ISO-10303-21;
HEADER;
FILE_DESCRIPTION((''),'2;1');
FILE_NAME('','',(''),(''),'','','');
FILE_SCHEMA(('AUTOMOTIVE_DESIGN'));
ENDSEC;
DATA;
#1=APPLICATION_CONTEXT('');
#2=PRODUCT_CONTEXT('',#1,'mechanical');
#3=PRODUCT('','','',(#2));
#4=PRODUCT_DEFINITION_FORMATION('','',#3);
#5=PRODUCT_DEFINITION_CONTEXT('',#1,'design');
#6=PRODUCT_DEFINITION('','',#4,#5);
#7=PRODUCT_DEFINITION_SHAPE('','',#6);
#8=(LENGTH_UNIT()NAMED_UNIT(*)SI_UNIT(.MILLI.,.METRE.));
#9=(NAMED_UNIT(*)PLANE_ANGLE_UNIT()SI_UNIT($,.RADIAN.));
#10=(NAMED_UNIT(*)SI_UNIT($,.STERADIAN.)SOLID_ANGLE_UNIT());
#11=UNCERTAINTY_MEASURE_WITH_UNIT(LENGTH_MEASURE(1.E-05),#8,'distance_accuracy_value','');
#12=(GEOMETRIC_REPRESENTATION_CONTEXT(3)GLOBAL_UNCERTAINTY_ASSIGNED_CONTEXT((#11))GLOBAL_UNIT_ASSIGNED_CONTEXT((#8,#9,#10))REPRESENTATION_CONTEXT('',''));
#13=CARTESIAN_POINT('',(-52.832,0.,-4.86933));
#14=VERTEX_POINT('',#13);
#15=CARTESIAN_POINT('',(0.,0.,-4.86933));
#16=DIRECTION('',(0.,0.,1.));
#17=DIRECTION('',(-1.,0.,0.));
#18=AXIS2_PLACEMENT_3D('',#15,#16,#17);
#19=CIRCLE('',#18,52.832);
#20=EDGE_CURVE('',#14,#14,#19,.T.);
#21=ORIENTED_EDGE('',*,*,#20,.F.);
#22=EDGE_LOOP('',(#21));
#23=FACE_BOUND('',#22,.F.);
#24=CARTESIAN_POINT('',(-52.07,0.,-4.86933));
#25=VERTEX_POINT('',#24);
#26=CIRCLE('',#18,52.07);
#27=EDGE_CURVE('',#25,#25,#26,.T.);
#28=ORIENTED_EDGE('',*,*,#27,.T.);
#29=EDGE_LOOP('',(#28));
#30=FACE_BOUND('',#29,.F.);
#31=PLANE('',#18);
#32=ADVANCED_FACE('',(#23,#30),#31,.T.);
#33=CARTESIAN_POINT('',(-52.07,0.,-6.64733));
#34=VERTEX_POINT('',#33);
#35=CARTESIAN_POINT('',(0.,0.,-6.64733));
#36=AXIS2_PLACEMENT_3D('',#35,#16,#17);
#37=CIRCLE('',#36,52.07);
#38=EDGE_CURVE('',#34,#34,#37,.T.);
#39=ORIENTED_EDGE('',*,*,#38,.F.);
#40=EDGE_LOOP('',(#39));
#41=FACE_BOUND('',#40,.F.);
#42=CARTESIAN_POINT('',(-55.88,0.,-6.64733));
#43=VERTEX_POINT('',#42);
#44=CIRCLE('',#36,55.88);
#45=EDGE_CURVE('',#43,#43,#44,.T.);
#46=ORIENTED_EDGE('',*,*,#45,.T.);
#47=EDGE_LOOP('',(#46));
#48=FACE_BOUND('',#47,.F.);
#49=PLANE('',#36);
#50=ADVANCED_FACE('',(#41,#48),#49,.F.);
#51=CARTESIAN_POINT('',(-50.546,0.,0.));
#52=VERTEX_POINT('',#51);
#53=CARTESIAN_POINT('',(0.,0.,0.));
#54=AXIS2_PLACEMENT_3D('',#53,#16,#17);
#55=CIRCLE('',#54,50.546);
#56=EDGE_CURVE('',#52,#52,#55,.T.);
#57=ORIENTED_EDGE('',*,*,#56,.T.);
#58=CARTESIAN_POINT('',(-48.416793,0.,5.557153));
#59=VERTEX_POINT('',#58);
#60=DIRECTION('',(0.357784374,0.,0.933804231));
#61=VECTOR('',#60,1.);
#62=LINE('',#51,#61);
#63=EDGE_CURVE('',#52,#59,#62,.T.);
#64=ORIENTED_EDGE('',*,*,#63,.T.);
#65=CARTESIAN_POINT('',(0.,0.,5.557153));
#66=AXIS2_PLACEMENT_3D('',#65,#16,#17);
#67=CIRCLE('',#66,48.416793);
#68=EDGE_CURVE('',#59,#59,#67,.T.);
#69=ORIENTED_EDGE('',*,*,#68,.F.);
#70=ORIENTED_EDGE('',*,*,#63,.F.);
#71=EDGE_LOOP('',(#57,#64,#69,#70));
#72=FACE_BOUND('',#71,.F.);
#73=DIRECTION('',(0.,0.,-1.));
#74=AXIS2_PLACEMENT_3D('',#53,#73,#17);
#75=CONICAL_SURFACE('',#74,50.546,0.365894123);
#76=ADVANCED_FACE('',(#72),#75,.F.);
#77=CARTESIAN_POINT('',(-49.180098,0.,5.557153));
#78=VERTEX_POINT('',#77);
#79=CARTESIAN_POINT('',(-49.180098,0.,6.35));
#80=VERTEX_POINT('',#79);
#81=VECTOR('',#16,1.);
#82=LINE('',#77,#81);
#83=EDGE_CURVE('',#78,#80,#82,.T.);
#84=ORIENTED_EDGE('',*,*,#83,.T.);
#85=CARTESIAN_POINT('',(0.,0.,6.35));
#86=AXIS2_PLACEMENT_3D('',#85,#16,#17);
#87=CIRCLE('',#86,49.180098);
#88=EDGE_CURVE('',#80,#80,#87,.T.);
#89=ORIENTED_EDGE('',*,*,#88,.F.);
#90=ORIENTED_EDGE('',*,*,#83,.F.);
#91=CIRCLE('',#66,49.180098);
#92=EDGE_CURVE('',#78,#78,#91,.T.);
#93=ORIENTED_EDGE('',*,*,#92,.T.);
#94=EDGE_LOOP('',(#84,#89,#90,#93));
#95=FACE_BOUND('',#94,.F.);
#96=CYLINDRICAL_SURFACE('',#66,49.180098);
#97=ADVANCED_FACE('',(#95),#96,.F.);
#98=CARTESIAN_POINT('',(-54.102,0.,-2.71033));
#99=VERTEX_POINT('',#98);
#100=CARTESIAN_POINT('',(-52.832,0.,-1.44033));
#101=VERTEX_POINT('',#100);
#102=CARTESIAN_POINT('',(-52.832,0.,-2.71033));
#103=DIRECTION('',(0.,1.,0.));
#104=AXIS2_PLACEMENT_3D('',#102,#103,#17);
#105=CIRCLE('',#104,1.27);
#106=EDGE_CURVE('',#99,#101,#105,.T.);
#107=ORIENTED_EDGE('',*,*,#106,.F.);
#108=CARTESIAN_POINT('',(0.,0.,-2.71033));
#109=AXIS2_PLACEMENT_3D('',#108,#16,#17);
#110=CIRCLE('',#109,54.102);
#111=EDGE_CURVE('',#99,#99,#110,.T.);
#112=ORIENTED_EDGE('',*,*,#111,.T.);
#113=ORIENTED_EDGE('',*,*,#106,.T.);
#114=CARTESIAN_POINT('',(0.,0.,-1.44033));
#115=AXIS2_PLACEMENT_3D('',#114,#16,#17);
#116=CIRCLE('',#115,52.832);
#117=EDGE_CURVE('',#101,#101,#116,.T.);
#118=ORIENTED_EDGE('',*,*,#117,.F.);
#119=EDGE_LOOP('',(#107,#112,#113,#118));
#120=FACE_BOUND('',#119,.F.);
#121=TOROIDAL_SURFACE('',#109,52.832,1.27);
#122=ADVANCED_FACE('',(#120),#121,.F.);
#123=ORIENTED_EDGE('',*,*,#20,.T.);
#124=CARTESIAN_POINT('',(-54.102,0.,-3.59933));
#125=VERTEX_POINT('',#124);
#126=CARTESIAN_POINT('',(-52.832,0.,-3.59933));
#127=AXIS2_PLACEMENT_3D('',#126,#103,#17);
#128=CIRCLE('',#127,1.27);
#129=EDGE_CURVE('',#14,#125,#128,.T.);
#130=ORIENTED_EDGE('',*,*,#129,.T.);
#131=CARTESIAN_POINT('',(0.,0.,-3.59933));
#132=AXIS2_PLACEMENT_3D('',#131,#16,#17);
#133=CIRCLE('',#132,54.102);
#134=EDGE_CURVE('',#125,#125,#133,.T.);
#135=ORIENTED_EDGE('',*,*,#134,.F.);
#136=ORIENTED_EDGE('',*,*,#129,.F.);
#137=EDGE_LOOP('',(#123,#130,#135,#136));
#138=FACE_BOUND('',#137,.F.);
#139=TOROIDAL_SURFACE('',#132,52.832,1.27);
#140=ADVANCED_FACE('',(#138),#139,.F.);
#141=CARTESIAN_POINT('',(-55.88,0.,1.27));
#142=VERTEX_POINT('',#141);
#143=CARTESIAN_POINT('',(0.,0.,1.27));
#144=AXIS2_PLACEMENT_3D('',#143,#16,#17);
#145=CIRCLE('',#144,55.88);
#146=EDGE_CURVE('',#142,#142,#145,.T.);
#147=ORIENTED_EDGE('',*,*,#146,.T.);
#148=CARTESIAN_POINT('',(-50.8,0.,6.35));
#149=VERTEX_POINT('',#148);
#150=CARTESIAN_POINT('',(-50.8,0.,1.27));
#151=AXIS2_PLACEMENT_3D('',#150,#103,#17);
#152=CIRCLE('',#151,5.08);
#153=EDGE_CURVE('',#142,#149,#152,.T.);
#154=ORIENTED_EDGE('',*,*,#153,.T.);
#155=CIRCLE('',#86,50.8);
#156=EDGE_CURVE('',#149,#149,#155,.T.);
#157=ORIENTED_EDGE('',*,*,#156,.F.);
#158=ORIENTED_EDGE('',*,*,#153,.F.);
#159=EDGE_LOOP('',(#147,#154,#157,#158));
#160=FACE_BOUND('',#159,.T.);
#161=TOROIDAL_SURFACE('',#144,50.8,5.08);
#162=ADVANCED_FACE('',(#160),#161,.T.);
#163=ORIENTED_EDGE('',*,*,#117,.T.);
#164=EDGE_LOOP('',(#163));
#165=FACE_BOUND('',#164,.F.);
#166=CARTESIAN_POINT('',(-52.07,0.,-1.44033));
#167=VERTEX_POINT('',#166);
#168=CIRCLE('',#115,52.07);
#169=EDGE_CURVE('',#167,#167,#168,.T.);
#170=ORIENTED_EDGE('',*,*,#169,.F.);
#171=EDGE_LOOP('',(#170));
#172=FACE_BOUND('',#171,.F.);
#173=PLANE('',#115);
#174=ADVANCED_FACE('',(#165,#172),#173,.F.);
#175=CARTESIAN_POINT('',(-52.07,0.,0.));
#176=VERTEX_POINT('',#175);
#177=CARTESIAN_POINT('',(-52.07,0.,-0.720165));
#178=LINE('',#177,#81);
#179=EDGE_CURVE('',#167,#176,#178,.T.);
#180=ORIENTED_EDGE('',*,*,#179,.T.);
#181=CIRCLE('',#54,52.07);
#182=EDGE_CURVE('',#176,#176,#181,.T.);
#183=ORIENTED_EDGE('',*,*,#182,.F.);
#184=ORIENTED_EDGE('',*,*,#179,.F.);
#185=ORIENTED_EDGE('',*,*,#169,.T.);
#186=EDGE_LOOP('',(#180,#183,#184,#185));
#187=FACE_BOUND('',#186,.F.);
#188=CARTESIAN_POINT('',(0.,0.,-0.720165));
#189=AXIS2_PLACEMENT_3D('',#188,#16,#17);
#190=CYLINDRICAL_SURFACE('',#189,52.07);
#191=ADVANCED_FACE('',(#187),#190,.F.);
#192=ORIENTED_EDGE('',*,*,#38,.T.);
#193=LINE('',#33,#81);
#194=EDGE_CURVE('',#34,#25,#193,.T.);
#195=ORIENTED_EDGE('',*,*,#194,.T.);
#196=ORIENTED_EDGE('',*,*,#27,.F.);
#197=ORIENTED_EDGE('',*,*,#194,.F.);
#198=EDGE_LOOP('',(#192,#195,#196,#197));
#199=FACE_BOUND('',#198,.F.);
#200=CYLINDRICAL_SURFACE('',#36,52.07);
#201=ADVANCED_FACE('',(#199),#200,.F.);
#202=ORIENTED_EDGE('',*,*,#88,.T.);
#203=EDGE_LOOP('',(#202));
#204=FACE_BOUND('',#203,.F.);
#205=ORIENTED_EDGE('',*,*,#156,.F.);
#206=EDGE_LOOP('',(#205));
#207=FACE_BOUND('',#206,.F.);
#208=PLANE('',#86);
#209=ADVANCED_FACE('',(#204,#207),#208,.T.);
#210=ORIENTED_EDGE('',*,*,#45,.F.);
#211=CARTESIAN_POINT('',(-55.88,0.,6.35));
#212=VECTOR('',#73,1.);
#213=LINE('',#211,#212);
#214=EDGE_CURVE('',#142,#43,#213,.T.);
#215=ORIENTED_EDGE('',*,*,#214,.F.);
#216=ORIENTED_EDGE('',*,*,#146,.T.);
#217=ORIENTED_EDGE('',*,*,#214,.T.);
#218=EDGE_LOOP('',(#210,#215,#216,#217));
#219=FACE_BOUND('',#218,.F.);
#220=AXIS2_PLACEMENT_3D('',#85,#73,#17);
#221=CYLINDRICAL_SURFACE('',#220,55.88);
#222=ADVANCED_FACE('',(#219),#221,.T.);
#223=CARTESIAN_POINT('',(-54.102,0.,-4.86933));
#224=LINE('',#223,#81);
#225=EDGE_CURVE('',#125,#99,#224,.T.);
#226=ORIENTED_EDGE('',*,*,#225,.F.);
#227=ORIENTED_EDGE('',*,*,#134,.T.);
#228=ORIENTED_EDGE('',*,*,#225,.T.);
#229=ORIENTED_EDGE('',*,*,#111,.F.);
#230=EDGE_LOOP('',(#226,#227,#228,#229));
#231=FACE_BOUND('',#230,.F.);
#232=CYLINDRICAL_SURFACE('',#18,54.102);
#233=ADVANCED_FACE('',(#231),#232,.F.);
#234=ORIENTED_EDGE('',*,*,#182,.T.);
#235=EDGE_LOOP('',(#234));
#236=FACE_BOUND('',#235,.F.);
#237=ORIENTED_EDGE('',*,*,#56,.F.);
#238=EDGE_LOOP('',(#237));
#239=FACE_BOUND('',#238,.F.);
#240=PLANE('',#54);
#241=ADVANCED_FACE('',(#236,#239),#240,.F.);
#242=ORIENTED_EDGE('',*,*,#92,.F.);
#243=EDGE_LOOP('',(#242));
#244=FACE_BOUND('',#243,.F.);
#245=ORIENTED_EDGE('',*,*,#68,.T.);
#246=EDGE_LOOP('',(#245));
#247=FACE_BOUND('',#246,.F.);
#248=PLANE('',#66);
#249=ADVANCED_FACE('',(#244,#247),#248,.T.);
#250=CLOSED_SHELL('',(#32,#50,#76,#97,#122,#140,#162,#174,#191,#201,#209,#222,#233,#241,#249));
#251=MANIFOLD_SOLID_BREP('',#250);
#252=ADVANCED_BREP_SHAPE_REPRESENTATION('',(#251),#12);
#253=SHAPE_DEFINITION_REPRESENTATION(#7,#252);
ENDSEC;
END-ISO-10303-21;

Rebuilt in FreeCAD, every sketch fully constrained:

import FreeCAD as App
import Part
import Sketcher

V = App.Vector
Q = App.Units.Quantity


def edges_at(feature, points):
    """Names of the edges that pass closest to the given points."""
    edges = feature.Shape.Edges
    near = lambda p: min(range(len(edges)), key=lambda i: edges[i].distToShape(Part.Vertex(*p))[0])
    return sorted({f"Edge{near(p) + 1}" for p in points})

doc = App.newDocument("Part")
body = doc.addObject("PartDesign::Body", "Body")

sketch1 = body.newObject("Sketcher::SketchObject", "Sketch")
sketch1.AttachmentSupport = (doc.getObject("XZ_Plane"), [""])
sketch1.MapMode = "FlatFace"
sketch1.addGeometry([
    Part.LineSegment(V(-49.2, 5.6, 0), V(-49.2, 6.3, 0)),
    Part.LineSegment(V(-49.2, 6.3, 0), V(-55.9, 6.3, 0)),
    Part.LineSegment(V(-55.9, 6.3, 0), V(-55.9, -6.6, 0)),
    Part.LineSegment(V(-55.9, -6.6, 0), V(-52.1, -6.6, 0)),
    Part.LineSegment(V(-52.1, -6.6, 0), V(-52.1, -4.9, 0)),
    Part.LineSegment(V(-52.1, -4.9, 0), V(-54.1, -4.9, 0)),
    Part.LineSegment(V(-54.1, -4.9, 0), V(-54.1, -1.4, 0)),
    Part.LineSegment(V(-54.1, -1.4, 0), V(-52.1, -1.4, 0)),
    Part.LineSegment(V(-52.1, -1.4, 0), V(-52.1, 0, 0)),
    Part.LineSegment(V(-52.1, 0, 0), V(-50.5, 0, 0)),
    Part.LineSegment(V(-50.5, 0, 0), V(-48.4, 5.6, 0)),
    Part.LineSegment(V(-48.4, 5.6, 0), V(-49.2, 5.6, 0)),
], False)
sketch1.addConstraint([
    Sketcher.Constraint("Coincident", 0, 2, 1, 1),
    Sketcher.Constraint("Coincident", 1, 2, 2, 1),
    Sketcher.Constraint("Coincident", 2, 2, 3, 1),
    Sketcher.Constraint("Coincident", 3, 2, 4, 1),
    Sketcher.Constraint("Coincident", 4, 2, 5, 1),
    Sketcher.Constraint("Coincident", 5, 2, 6, 1),
    Sketcher.Constraint("Coincident", 6, 2, 7, 1),
    Sketcher.Constraint("Coincident", 7, 2, 8, 1),
    Sketcher.Constraint("Coincident", 8, 2, 9, 1),
    Sketcher.Constraint("Coincident", 9, 2, 10, 1),
    Sketcher.Constraint("Coincident", 10, 2, 11, 1),
    Sketcher.Constraint("Coincident", 11, 2, 0, 1),
    Sketcher.Constraint("Vertical", 0),
    Sketcher.Constraint("Horizontal", 1),
    Sketcher.Constraint("Vertical", 2),
    Sketcher.Constraint("Horizontal", 3),
    Sketcher.Constraint("Vertical", 4),
    Sketcher.Constraint("Horizontal", 5),
    Sketcher.Constraint("Vertical", 6),
    Sketcher.Constraint("Horizontal", 7),
    Sketcher.Constraint("Vertical", 8),
    Sketcher.Constraint("Horizontal", 9),
    Sketcher.Constraint("Horizontal", 11),
    Sketcher.Constraint("PointOnObject", 8, 2, -1),
    Sketcher.Constraint("Vertical", 4, 2, 7, 2),
    Sketcher.Constraint("DistanceX", 3, 1, 3, 2, Q("0.15 in")),
    Sketcher.Constraint("DistanceX", 5, 2, 5, 1, Q("0.08 in")),
    Sketcher.Constraint("DistanceX", 9, 1, 9, 2, Q("0.06 in")),
    Sketcher.Constraint("DistanceY", 4, 1, 4, 2, Q("0.07 in")),
    Sketcher.Constraint("DistanceX", 1, 2, -1, 1, Q("2.2 in")),
    Sketcher.Constraint("DistanceY", 6, 1, 6, 2, Q("0.135 in")),
    Sketcher.Constraint("DistanceY", -1, 1, 0, 2, Q("0.25 in")),
    Sketcher.Constraint("DistanceY", 2, 2, 2, 1, 12.99733),
    Sketcher.Constraint("DistanceX", 3, 2, 0, 2, 2.889902),
    Sketcher.Constraint("Distance", 10, 5.95109),
    Sketcher.Constraint("DistanceX", 11, 2, 11, 1, 0.763305),
])
revolution = body.newObject("PartDesign::Revolution", "Revolution")
revolution.Profile = sketch1
revolution.ReferenceAxis = (sketch1, ["V_Axis"])
revolution.Angle = 360
doc.recompute()

fillet = body.newObject("PartDesign::Fillet", "Fillet")
fillet.Base = (revolution, edges_at(revolution, [(54.102, 0, -1.44), (54.102, 0, -4.869)]))
fillet.Radius = Q("0.05 in")
doc.recompute()

fillet2 = body.newObject("PartDesign::Fillet", "Fillet001")
fillet2.Base = (fillet, edges_at(fillet, [(55.88, 0, 6.35)]))
fillet2.Radius = Q("0.2 in")

doc.recompute()
